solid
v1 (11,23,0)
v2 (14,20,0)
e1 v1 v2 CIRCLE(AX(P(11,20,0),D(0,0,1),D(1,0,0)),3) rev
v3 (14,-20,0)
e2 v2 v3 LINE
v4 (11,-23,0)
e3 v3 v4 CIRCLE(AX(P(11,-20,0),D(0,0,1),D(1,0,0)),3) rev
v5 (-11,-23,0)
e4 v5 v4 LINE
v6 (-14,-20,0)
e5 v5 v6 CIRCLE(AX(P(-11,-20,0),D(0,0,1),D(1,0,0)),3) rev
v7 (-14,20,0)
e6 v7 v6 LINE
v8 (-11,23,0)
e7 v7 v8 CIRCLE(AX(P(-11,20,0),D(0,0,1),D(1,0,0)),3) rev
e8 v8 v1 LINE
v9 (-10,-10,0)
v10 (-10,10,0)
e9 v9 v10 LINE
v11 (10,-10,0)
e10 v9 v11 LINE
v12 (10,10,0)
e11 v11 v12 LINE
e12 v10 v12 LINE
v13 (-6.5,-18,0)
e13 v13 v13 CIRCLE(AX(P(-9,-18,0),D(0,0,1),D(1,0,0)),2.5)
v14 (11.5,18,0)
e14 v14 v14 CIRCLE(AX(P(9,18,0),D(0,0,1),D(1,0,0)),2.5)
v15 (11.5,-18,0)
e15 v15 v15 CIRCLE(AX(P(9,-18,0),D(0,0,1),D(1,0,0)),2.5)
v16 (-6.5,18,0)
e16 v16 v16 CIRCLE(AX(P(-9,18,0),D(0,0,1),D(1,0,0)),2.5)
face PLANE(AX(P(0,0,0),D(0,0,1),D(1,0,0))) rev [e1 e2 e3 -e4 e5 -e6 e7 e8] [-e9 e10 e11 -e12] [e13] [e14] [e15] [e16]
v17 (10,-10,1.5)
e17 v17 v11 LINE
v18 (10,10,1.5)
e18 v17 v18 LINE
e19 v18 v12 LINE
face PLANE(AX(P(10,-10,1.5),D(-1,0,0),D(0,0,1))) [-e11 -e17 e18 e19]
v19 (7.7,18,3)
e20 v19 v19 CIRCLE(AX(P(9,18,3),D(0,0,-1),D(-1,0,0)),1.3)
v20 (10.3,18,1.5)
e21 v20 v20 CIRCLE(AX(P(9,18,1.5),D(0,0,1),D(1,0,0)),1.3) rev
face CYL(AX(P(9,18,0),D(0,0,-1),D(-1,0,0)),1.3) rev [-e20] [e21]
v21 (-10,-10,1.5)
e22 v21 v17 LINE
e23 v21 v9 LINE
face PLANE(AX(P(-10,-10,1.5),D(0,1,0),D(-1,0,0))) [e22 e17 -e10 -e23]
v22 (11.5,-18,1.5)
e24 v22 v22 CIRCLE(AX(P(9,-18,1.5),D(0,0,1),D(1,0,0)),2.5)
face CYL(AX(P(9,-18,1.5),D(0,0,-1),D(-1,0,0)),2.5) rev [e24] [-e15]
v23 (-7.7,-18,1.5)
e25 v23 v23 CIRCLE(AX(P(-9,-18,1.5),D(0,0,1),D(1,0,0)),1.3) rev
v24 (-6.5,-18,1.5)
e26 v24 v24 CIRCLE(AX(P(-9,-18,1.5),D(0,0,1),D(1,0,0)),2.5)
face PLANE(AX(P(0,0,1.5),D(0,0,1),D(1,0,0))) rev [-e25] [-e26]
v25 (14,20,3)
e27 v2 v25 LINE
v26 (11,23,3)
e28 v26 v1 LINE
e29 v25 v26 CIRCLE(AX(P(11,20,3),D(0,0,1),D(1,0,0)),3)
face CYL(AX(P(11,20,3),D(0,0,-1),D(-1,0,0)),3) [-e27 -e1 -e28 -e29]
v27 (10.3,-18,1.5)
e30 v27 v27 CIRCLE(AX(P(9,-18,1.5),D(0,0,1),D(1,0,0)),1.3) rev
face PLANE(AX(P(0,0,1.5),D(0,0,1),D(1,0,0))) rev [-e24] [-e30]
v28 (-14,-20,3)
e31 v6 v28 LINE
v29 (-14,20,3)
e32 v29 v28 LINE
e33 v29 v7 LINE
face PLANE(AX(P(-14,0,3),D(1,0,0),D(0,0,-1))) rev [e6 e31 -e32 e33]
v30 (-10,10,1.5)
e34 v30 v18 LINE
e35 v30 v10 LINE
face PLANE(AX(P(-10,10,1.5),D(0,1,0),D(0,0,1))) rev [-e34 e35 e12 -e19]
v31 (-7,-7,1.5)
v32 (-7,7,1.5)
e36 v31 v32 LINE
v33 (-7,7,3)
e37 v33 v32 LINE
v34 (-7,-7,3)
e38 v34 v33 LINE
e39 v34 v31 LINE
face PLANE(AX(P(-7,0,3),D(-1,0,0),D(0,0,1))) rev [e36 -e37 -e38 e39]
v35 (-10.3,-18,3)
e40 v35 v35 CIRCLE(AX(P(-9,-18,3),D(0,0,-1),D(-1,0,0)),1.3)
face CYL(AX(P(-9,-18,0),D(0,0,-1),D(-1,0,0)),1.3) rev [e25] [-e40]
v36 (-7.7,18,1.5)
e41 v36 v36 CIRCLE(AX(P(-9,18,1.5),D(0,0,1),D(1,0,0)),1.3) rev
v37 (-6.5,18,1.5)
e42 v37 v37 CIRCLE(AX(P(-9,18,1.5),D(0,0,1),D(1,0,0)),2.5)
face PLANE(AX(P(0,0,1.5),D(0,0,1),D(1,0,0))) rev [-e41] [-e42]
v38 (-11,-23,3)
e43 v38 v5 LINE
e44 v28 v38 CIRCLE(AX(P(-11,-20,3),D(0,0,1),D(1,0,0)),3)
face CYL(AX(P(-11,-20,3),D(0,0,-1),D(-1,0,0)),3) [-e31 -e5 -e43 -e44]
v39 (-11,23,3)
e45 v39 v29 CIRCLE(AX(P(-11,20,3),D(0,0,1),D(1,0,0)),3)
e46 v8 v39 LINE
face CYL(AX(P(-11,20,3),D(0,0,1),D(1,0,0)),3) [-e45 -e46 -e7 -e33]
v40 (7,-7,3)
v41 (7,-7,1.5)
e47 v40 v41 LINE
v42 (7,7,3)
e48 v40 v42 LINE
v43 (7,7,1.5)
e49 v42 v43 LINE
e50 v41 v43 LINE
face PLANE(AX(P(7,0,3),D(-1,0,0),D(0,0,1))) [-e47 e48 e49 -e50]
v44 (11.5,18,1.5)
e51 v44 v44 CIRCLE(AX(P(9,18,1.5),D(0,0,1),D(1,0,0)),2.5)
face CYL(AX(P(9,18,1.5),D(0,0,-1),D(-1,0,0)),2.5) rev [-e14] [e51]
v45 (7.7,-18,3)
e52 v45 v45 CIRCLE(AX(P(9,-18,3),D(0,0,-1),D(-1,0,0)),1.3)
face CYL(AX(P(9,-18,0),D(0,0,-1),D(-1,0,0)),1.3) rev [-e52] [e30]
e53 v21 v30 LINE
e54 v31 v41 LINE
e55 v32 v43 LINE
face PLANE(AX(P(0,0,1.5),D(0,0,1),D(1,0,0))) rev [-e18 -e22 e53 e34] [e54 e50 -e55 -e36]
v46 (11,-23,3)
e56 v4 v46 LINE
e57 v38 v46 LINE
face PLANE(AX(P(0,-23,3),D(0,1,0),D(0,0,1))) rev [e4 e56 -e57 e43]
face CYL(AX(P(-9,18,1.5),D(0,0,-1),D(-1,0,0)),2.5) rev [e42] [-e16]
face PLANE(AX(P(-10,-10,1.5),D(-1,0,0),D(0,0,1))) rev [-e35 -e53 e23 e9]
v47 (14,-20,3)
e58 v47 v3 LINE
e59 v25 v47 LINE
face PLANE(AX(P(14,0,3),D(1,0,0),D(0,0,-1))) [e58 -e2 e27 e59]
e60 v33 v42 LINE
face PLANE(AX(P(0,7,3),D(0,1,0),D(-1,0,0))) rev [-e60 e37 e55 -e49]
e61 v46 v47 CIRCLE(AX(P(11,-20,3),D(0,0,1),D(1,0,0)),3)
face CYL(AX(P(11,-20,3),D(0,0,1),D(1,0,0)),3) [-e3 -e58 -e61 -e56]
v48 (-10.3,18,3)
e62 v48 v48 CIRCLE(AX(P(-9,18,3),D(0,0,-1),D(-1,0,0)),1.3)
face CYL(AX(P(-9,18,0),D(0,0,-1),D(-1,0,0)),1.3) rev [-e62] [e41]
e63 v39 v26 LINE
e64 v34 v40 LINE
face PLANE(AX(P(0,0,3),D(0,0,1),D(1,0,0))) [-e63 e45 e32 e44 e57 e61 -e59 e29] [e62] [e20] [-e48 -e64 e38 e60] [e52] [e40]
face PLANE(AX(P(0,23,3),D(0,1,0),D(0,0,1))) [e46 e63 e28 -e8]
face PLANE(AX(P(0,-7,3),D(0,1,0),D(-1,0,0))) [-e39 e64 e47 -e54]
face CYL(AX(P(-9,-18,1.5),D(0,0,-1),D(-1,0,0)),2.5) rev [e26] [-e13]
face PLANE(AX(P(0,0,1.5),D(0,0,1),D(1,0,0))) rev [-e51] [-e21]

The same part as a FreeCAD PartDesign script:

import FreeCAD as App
import Part
import Sketcher


def edges_at(feature, points):
    """Names of the edges that pass closest to the given points."""
    edges = feature.Shape.Edges
    near = lambda p: min(range(len(edges)), key=lambda i: edges[i].distToShape(Part.Vertex(*p))[0])
    return sorted({f"Edge{near(p) + 1}" for p in points})

doc = App.newDocument("Part")
body = doc.addObject("PartDesign::Body", "Body")

sketch1 = doc.addObject("Sketcher::SketchObject", "Sketch")
body.addObject(sketch1)
sketch1.AttachmentSupport = (doc.XY_Plane, [""])
sketch1.MapMode = "FlatFace"
sketch1.addGeometry([
    Part.LineSegment(App.Vector(-14, -23, 0), App.Vector(14, -23, 0)),
    Part.LineSegment(App.Vector(14, -23, 0), App.Vector(14, 23, 0)),
    Part.LineSegment(App.Vector(14, 23, 0), App.Vector(-14, 23, 0)),
    Part.LineSegment(App.Vector(-14, 23, 0), App.Vector(-14, -23, 0)),
    Part.LineSegment(App.Vector(7, 7, 0), App.Vector(7, -7, 0)),
    Part.LineSegment(App.Vector(7, -7, 0), App.Vector(-7, -7, 0)),
    Part.LineSegment(App.Vector(-7, -7, 0), App.Vector(-7, 7, 0)),
    Part.LineSegment(App.Vector(-7, 7, 0), App.Vector(7, 7, 0)),
], False)
sketch1.addConstraint([
    Sketcher.Constraint("Coincident", 0, 2, 1, 1),
    Sketcher.Constraint("Coincident", 1, 2, 2, 1),
    Sketcher.Constraint("Coincident", 2, 2, 3, 1),
    Sketcher.Constraint("Coincident", 3, 2, 0, 1),
    Sketcher.Constraint("Coincident", 4, 2, 5, 1),
    Sketcher.Constraint("Coincident", 5, 2, 6, 1),
    Sketcher.Constraint("Coincident", 6, 2, 7, 1),
    Sketcher.Constraint("Coincident", 7, 2, 4, 1),
    Sketcher.Constraint("Horizontal", 0),
    Sketcher.Constraint("Vertical", 1),
    Sketcher.Constraint("Horizontal", 2),
    Sketcher.Constraint("Vertical", 3),
    Sketcher.Constraint("Vertical", 4),
    Sketcher.Constraint("Horizontal", 5),
    Sketcher.Constraint("Vertical", 6),
    Sketcher.Constraint("Horizontal", 7),
    Sketcher.Constraint("Symmetric", 0, 2, 2, 2, -1, 1),
    Sketcher.Constraint("Symmetric", 4, 2, 6, 2, -1, 1),
    Sketcher.Constraint("Equal", 7, 4),
    Sketcher.Constraint("DistanceX", 0, 1, 0, 2, 28.0),
    Sketcher.Constraint("DistanceX", 5, 2, 5, 1, 14.0),
    Sketcher.Constraint("DistanceY", 1, 1, 1, 2, 46.0),
])
pad1 = doc.addObject("PartDesign::Pad", "Pad")
body.addObject(pad1)
pad1.Profile = sketch1
pad1.Length = 3

sketch2 = doc.addObject("Sketcher::SketchObject", "Sketch001")
body.addObject(sketch2)
sketch2.AttachmentSupport = (doc.XY_Plane, [""])
sketch2.MapMode = "FlatFace"
sketch2.addGeometry([
    Part.Circle(App.Vector(9, -18, 0), App.Vector(0, 0, 1), 1.3),
    Part.Circle(App.Vector(-9, -18, 0), App.Vector(0, 0, 1), 1.3),
    Part.Circle(App.Vector(9, 18, 0), App.Vector(0, 0, 1), 1.3),
    Part.Circle(App.Vector(-9, 18, 0), App.Vector(0, 0, 1), 1.3),
], False)
sketch2.addConstraint([
    Sketcher.Constraint("Equal", 0, 1),
    Sketcher.Constraint("Equal", 1, 2),
    Sketcher.Constraint("Equal", 2, 3),
    Sketcher.Constraint("Symmetric", 1, 3, 2, 3, -1, 1),
    Sketcher.Constraint("Symmetric", 0, 3, 3, 3, -1, 1),
    Sketcher.Constraint("Symmetric", 0, 3, 1, 3, -2),
    Sketcher.Constraint("Diameter", 0, 2.6),
    Sketcher.Constraint("DistanceX", -1, 1, 0, 3, 9.0),
    Sketcher.Constraint("DistanceY", 0, 3, -1, 1, 18.0),
])
doc.recompute()
hole = doc.addObject("PartDesign::Hole", "Hole")
body.addObject(hole)
hole.Profile = sketch2
hole.ThreadType = "None"
hole.Diameter = 2.6
hole.DepthType = "ThroughAll"
hole.Reversed = True

sketch3 = doc.addObject("Sketcher::SketchObject", "Sketch002")
body.addObject(sketch3)
sketch3.AttachmentSupport = (doc.XY_Plane, [""])
sketch3.MapMode = "FlatFace"
sketch3.addGeometry([
    Part.Circle(App.Vector(9, -18, 0), App.Vector(0, 0, 1), 2.5),
    Part.Circle(App.Vector(-9, -18, 0), App.Vector(0, 0, 1), 2.5),
    Part.Circle(App.Vector(-9, 18, 0), App.Vector(0, 0, 1), 2.5),
    Part.Circle(App.Vector(9, 18, 0), App.Vector(0, 0, 1), 2.5),
    Part.LineSegment(App.Vector(-10, -10, 0), App.Vector(10, -10, 0)),
    Part.LineSegment(App.Vector(10, -10, 0), App.Vector(10, 10, 0)),
    Part.LineSegment(App.Vector(10, 10, 0), App.Vector(-10, 10, 0)),
    Part.LineSegment(App.Vector(-10, 10, 0), App.Vector(-10, -10, 0)),
], False)
sketch3.addConstraint([
    Sketcher.Constraint("Coincident", 4, 2, 5, 1),
    Sketcher.Constraint("Coincident", 5, 2, 6, 1),
    Sketcher.Constraint("Coincident", 6, 2, 7, 1),
    Sketcher.Constraint("Coincident", 7, 2, 4, 1),
    Sketcher.Constraint("Horizontal", 4),
    Sketcher.Constraint("Vertical", 5),
    Sketcher.Constraint("Horizontal", 6),
    Sketcher.Constraint("Vertical", 7),
    Sketcher.Constraint("Equal", 0, 1),
    Sketcher.Constraint("Equal", 1, 2),
    Sketcher.Constraint("Equal", 2, 3),
    Sketcher.Constraint("Symmetric", 0, 3, 2, 3, -1, 1),
    Sketcher.Constraint("Symmetric", 1, 3, 3, 3, -1, 1),
    Sketcher.Constraint("Symmetric", 4, 2, 6, 2, -1, 1),
    Sketcher.Constraint("Symmetric", 0, 3, 1, 3, -2),
    Sketcher.Constraint("Equal", 6, 5),
    Sketcher.Constraint("Diameter", 0, 5.0),
    Sketcher.Constraint("DistanceX", 4, 1, 4, 2, 20.0),
    Sketcher.Constraint("DistanceX", -1, 1, 0, 3, 9.0),
    Sketcher.Constraint("DistanceY", 0, 3, -1, 1, 18.0),
])
pocket1 = doc.addObject("PartDesign::Pocket", "Pocket")
body.addObject(pocket1)
pocket1.Profile = sketch3
pocket1.Length = 1.5
pocket1.Reversed = True
doc.recompute()

fillet = doc.addObject("PartDesign::Fillet", "Fillet")
body.addObject(fillet)
fillet.Base = (pocket1, edges_at(pocket1, [
    (-14, 23, 1.5),
    (14, 23, 1.5),
    (14, -23, 1.5),
    (-14, -23, 1.5),
]))
fillet.Radius = 3

doc.recompute()
